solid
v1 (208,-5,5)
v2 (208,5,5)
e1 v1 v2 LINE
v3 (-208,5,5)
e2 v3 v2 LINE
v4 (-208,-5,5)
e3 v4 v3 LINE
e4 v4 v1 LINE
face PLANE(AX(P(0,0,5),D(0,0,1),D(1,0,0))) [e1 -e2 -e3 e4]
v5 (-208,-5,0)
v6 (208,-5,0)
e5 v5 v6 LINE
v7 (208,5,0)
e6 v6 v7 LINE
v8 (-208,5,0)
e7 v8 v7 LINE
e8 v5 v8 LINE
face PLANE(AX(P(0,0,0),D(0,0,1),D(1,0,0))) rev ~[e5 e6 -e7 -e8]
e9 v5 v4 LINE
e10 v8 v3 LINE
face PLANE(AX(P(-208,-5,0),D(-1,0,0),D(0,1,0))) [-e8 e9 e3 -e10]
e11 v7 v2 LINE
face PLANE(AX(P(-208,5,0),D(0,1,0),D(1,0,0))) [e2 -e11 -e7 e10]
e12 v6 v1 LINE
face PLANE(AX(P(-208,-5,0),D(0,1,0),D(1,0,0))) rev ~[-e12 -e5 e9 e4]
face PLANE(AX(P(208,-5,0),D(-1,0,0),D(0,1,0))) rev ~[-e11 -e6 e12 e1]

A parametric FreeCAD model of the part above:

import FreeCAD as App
import Part
import Sketcher
from FreeCAD import Vector
Q = App.Units.Quantity


def add_polygon(sketch, points):
    """Adds a closed chain of lines whose ends are joined by coincident constraints."""
    first, n = sketch.GeometryCount, len(points)
    for a, b in zip(points, points[1:] + points[:1]):
        sketch.addGeometry(Part.LineSegment(App.Vector(*a, 0), App.Vector(*b, 0)), False)
    for i in range(n):
        sketch.addConstraint(Sketcher.Constraint("Coincident", first + i, 2, first + (i + 1) % n, 1))

doc = App.newDocument("Part")
body = doc.addObject("PartDesign::Body", "Body")

sketch1 = doc.addObject("Sketcher::SketchObject", "Sketch")
body.addObject(sketch1)
sketch1.AttachmentSupport = (doc.XY_Plane, [""])
sketch1.MapMode = "FlatFace"
add_polygon(sketch1, [(-208, 5), (-208, -5), (208, -5), (208, 5)])
sketch1.addConstraint([
    Sketcher.Constraint("Vertical", 0),
    Sketcher.Constraint("Horizontal", 1),
    Sketcher.Constraint("Vertical", 2),
    Sketcher.Constraint("Horizontal", 3),
    Sketcher.Constraint("Symmetric", 0, 2, 2, 2, -1, 1),
    Sketcher.Constraint("DistanceX", 1, 1, 1, 2, Q("416 mm")),
    Sketcher.Constraint("DistanceY", 0, 2, 0, 1, Q("10 mm")),
])
pad1 = doc.addObject("PartDesign::Pad", "Pad")
body.addObject(pad1)
pad1.Profile = sketch1
pad1.Length = 5

doc.recompute()
